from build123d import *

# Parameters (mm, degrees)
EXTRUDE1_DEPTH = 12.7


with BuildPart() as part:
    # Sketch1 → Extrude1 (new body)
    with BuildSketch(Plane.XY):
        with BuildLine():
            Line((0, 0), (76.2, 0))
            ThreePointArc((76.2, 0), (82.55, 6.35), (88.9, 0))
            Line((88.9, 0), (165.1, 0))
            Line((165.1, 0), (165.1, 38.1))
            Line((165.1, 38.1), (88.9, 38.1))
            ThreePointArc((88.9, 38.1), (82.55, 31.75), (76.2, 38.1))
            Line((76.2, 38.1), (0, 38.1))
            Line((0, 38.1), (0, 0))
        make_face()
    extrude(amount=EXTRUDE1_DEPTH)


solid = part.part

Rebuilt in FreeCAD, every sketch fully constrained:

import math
import FreeCAD as App
import Part
import Sketcher
from FreeCAD import Vector
Q = App.Units.Quantity

doc = App.newDocument("Part")
body = doc.addObject("PartDesign::Body", "Body")

sketch1 = body.newObject("Sketcher::SketchObject", "Sketch")
sketch1.AttachmentSupport = (doc.getObject("XY_Plane"), [""])
sketch1.MapMode = "FlatFace"
sketch1.addGeometry([
    Part.LineSegment(Vector(0, 0, 0), Vector(76.2, 0, 0)),
    Part.ArcOfCircle(Part.Circle(Vector(82.55, 0, 0), Vector(0, 0, 1), 6.35), math.radians(0), math.radians(180)),
    Part.LineSegment(Vector(88.9, 0, 0), Vector(165.1, 0, 0)),
    Part.LineSegment(Vector(165.1, 0, 0), Vector(165.1, 38.1, 0)),
    Part.LineSegment(Vector(165.1, 38.1, 0), Vector(88.9, 38.1, 0)),
    Part.ArcOfCircle(Part.Circle(Vector(82.55, 38.1, 0), Vector(0, 0, 1), 6.35), math.radians(180), math.radians(360)),
    Part.LineSegment(Vector(76.2, 38.1, 0), Vector(0, 38.1, 0)),
    Part.LineSegment(Vector(0, 38.1, 0), Vector(0, 0, 0)),
], False)
sketch1.addConstraint([
    Sketcher.Constraint("Coincident", 0, 2, 1, 2),
    Sketcher.Constraint("Coincident", 1, 1, 2, 1),
    Sketcher.Constraint("Coincident", 2, 2, 3, 1),
    Sketcher.Constraint("Coincident", 3, 2, 4, 1),
    Sketcher.Constraint("Coincident", 4, 2, 5, 2),
    Sketcher.Constraint("Coincident", 5, 1, 6, 1),
    Sketcher.Constraint("Coincident", 6, 2, 7, 1),
    Sketcher.Constraint("Coincident", 7, 2, 0, 1),
    Sketcher.Constraint("Horizontal", 0),
    Sketcher.Constraint("Horizontal", 2),
    Sketcher.Constraint("Vertical", 3),
    Sketcher.Constraint("Horizontal", 4),
    Sketcher.Constraint("Horizontal", 6),
    Sketcher.Constraint("Vertical", 7),
    Sketcher.Constraint("Coincident", 7, 2, -1, 1),
    Sketcher.Constraint("Equal", 1, 5),
    Sketcher.Constraint("PointOnObject", 1, 3, -1),
    Sketcher.Constraint("PointOnObject", 1, 1, -1),
    Sketcher.Constraint("Horizontal", 5, 3, 3, 2),
    Sketcher.Constraint("Horizontal", 4, 2, 5, 1),
    Sketcher.Constraint("Vertical", 1, 3, 5, 3),
    Sketcher.Constraint("Equal", 0, 2),
    Sketcher.Constraint("DistanceX", 0, 1, 0, 2, Q("3 in")),
    Sketcher.Constraint("Radius", 1, Q("0.25 in")),
    Sketcher.Constraint("DistanceY", 3, 1, 3, 2, Q("1.5 in")),
])
pad1 = body.newObject("PartDesign::Pad", "Pad")
pad1.Profile = sketch1
pad1.Length = Q("0.5 in")

doc.recompute()
